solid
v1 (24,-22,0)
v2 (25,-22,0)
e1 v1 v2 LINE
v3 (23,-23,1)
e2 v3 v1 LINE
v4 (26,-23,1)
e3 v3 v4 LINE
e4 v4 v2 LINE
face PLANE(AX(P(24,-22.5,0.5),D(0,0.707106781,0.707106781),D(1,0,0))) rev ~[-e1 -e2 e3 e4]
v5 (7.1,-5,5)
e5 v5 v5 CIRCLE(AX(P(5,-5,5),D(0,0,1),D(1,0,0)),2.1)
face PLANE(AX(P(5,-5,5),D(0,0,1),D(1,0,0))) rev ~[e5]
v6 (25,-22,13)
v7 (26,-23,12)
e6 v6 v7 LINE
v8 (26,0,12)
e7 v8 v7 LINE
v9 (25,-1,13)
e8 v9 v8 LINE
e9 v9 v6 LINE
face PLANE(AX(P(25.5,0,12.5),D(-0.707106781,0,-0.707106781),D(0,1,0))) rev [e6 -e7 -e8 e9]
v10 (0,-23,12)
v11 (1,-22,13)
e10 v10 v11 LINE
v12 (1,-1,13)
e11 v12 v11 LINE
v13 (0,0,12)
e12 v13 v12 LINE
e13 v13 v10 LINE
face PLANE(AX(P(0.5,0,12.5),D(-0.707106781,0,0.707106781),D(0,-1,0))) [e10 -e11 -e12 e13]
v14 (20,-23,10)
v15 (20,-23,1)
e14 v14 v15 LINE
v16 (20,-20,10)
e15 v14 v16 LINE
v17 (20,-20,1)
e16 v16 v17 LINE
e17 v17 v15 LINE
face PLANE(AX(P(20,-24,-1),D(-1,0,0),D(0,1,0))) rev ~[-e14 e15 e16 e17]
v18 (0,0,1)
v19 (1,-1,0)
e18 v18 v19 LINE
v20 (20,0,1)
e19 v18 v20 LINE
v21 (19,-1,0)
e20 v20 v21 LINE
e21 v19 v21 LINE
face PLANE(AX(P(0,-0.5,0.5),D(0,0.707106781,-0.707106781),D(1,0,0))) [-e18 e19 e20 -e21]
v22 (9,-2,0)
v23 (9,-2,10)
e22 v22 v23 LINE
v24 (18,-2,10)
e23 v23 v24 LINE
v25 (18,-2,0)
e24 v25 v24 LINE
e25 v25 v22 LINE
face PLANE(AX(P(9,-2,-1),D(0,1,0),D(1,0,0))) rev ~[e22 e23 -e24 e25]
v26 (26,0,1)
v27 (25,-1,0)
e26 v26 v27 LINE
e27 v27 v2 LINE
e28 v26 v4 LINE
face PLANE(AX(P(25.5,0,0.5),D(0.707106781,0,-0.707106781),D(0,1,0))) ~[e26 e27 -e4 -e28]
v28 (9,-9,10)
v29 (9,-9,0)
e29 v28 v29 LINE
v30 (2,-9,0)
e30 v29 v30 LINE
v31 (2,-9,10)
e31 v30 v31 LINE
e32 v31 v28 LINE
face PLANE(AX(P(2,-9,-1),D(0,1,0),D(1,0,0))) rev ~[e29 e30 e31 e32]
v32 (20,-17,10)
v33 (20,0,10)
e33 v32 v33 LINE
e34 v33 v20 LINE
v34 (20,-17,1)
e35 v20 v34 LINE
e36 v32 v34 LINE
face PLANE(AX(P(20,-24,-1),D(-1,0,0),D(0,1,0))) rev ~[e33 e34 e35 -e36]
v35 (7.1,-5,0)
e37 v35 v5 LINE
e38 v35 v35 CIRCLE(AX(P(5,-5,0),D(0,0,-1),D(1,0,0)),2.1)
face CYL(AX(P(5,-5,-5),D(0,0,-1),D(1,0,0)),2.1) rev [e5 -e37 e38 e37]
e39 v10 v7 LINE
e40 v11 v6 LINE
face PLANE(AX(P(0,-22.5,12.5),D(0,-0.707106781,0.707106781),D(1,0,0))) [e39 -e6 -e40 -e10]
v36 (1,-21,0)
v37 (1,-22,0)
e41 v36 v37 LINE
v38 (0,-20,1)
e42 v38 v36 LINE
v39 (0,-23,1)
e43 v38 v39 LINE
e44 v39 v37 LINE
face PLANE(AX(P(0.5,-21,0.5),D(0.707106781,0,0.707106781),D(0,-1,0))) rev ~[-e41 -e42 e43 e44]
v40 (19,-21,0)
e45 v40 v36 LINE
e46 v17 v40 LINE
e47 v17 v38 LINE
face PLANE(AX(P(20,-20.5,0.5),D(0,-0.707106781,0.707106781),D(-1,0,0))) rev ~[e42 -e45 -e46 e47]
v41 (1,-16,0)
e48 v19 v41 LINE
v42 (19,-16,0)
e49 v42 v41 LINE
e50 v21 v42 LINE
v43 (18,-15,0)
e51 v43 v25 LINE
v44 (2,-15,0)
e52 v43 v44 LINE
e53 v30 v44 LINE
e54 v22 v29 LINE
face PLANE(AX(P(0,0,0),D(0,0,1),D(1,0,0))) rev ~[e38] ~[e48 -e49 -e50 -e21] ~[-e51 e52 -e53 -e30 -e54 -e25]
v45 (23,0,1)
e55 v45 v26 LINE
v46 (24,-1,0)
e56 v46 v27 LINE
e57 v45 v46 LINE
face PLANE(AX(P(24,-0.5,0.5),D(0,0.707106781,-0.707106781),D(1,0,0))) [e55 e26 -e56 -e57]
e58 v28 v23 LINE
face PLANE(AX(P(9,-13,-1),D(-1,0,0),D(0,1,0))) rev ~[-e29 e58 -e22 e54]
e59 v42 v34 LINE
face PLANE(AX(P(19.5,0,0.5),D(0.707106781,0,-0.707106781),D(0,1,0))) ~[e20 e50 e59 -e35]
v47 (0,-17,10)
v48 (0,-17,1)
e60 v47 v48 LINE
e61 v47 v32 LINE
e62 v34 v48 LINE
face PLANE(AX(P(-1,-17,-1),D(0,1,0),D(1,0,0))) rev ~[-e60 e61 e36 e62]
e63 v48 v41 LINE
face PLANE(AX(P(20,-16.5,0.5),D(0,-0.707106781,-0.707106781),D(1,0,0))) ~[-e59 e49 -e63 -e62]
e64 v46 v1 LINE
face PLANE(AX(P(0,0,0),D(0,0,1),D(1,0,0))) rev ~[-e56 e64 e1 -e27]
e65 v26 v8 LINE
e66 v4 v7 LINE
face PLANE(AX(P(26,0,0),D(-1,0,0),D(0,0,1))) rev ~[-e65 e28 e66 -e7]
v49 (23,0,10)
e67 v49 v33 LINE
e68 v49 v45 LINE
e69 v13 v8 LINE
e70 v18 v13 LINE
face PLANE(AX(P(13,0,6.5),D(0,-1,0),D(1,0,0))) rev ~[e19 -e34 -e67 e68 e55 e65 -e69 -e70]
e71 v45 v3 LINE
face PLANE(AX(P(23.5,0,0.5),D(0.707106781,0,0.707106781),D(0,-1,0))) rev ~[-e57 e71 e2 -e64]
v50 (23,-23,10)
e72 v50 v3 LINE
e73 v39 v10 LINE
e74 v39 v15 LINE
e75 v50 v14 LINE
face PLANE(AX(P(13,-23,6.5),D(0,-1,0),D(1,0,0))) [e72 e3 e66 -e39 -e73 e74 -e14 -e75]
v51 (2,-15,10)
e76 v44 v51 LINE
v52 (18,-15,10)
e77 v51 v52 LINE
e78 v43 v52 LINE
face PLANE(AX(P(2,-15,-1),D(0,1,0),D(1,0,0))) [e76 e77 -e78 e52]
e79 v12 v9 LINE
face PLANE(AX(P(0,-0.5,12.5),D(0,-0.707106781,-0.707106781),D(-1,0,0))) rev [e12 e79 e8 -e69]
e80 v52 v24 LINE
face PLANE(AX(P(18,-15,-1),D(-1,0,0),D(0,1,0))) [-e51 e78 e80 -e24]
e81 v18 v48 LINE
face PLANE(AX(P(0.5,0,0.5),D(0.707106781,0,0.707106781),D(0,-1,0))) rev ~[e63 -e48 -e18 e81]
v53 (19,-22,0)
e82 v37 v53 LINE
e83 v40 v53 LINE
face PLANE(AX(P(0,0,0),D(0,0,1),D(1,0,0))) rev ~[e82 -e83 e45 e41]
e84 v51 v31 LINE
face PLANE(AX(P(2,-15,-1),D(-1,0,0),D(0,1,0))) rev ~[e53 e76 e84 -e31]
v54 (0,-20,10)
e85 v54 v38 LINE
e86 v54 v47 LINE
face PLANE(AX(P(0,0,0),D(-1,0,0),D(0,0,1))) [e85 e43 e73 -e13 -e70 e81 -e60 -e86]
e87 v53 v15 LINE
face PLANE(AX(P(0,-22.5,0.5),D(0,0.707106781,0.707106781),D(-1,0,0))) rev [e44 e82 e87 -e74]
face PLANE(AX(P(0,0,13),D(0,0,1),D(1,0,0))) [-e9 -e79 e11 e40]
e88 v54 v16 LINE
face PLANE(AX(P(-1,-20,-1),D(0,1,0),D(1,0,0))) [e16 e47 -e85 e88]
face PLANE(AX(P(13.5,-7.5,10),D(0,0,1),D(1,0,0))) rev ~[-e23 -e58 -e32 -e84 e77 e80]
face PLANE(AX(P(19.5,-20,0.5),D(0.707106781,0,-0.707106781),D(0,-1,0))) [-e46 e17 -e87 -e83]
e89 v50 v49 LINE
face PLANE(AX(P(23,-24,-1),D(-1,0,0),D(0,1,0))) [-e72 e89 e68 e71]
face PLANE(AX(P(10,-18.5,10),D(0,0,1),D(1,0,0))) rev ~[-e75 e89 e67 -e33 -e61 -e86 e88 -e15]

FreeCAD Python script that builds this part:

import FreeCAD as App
import Part
import Sketcher


def edges_at(feature, points):
    """Names of the edges that pass closest to the given points."""
    edges = feature.Shape.Edges
    near = lambda p: min(range(len(edges)), key=lambda i: edges[i].distToShape(Part.Vertex(*p))[0])
    return sorted({f"Edge{near(p) + 1}" for p in points})

doc = App.newDocument("Part")
body = doc.addObject("PartDesign::Body", "Body")

# Sketch on XY plane
sketch1 = body.newObject("Sketcher::SketchObject", "Sketch")
sketch1.AttachmentSupport = (doc.getObject("XY_Plane"), [""])
sketch1.MapMode = "FlatFace"
sketch1.AttachmentOffset = App.Placement(App.Vector(0, 0, -5), App.Rotation())
sketch1.addGeometry(Part.Circle(App.Vector(5, -5, 0), App.Vector(0, 0, 1), 2.1), False)
sketch1.addConstraint([
    Sketcher.Constraint("Diameter", 0, 4.2),
    Sketcher.Constraint("DistanceX", -1, 1, 0, 3, 5.0),
    Sketcher.Constraint("DistanceY", 0, 3, -1, 1, 5.0),
])
pad1 = body.newObject("PartDesign::Pad", "Pad")
pad1.Profile = sketch1
pad1.Length = 10
body2 = doc.addObject("PartDesign::Body", "Body001")

# Sketch on XY plane
sketch2 = body2.newObject("Sketcher::SketchObject", "Sketch001")
sketch2.AttachmentSupport = (doc.getObject("XY_Plane001"), [""])
sketch2.MapMode = "FlatFace"
sketch2.AttachmentOffset = App.Placement(App.Vector(0, 0, -1), App.Rotation())
sketch2.addGeometry([
    Part.LineSegment(App.Vector(2, -9, 0), App.Vector(2, -15, 0)),
    Part.LineSegment(App.Vector(2, -15, 0), App.Vector(18, -15, 0)),
    Part.LineSegment(App.Vector(18, -15, 0), App.Vector(18, -9, 0)),
    Part.LineSegment(App.Vector(18, -9, 0), App.Vector(2, -9, 0)),
], False)
sketch2.addConstraint([
    Sketcher.Constraint("Coincident", 0, 2, 1, 1),
    Sketcher.Constraint("Coincident", 1, 2, 2, 1),
    Sketcher.Constraint("Coincident", 2, 2, 3, 1),
    Sketcher.Constraint("Coincident", 3, 2, 0, 1),
    Sketcher.Constraint("Vertical", 0),
    Sketcher.Constraint("Horizontal", 1),
    Sketcher.Constraint("Vertical", 2),
    Sketcher.Constraint("Horizontal", 3),
    Sketcher.Constraint("DistanceX", 1, 1, 1, 2, 16.0),
    Sketcher.Constraint("DistanceY", 0, 2, 0, 1, 6.0),
    Sketcher.Constraint("DistanceX", -1, 1, 0, 2, 2.0),
    Sketcher.Constraint("DistanceY", 0, 2, -1, 1, 15.0),
])
pad2 = body2.newObject("PartDesign::Pad", "Pad001")
pad2.Profile = sketch2
pad2.Length = 11
body3 = doc.addObject("PartDesign::Body", "Body002")

# Sketch on XY plane
sketch3 = body3.newObject("Sketcher::SketchObject", "Sketch002")
sketch3.AttachmentSupport = (doc.getObject("XY_Plane002"), [""])
sketch3.MapMode = "FlatFace"
sketch3.AttachmentOffset = App.Placement(App.Vector(0, 0, -1), App.Rotation())
sketch3.addGeometry([
    Part.LineSegment(App.Vector(9, -2, 0), App.Vector(9, -13, 0)),
    Part.LineSegment(App.Vector(9, -13, 0), App.Vector(18, -13, 0)),
    Part.LineSegment(App.Vector(18, -13, 0), App.Vector(18, -2, 0)),
    Part.LineSegment(App.Vector(18, -2, 0), App.Vector(9, -2, 0)),
], False)
sketch3.addConstraint([
    Sketcher.Constraint("Coincident", 0, 2, 1, 1),
    Sketcher.Constraint("Coincident", 1, 2, 2, 1),
    Sketcher.Constraint("Coincident", 2, 2, 3, 1),
    Sketcher.Constraint("Coincident", 3, 2, 0, 1),
    Sketcher.Constraint("Vertical", 0),
    Sketcher.Constraint("Horizontal", 1),
    Sketcher.Constraint("Vertical", 2),
    Sketcher.Constraint("Horizontal", 3),
    Sketcher.Constraint("DistanceX", 1, 1, 1, 2, 9.0),
    Sketcher.Constraint("DistanceY", 0, 2, 0, 1, 11.0),
    Sketcher.Constraint("DistanceX", -1, 1, 0, 2, 9.0),
    Sketcher.Constraint("DistanceY", 0, 2, -1, 1, 13.0),
])
pad3 = body3.newObject("PartDesign::Pad", "Pad002")
pad3.Profile = sketch3
pad3.Length = 11
body4 = doc.addObject("PartDesign::Body", "Body003")

# Sketch on XY plane
sketch4 = body4.newObject("Sketcher::SketchObject", "Sketch003")
sketch4.AttachmentSupport = (doc.getObject("XY_Plane003"), [""])
sketch4.MapMode = "FlatFace"
sketch4.AttachmentOffset = App.Placement(App.Vector(0, 0, -1), App.Rotation())
sketch4.addGeometry([
    Part.LineSegment(App.Vector(-1, -17, 0), App.Vector(-1, -20, 0)),
    Part.LineSegment(App.Vector(-1, -20, 0), App.Vector(21, -20, 0)),
    Part.LineSegment(App.Vector(21, -20, 0), App.Vector(21, -17, 0)),
    Part.LineSegment(App.Vector(21, -17, 0), App.Vector(-1, -17, 0)),
], False)
sketch4.addConstraint([
    Sketcher.Constraint("Coincident", 0, 2, 1, 1),
    Sketcher.Constraint("Coincident", 1, 2, 2, 1),
    Sketcher.Constraint("Coincident", 2, 2, 3, 1),
    Sketcher.Constraint("Coincident", 3, 2, 0, 1),
    Sketcher.Constraint("Vertical", 0),
    Sketcher.Constraint("Horizontal", 1),
    Sketcher.Constraint("Vertical", 2),
    Sketcher.Constraint("Horizontal", 3),
    Sketcher.Constraint("DistanceX", 1, 1, 1, 2, 22.0),
    Sketcher.Constraint("DistanceY", 0, 2, 0, 1, 3.0),
    Sketcher.Constraint("DistanceX", 0, 2, -1, 1, 1.0),
    Sketcher.Constraint("DistanceY", 0, 2, -1, 1, 20.0),
])
pad4 = body4.newObject("PartDesign::Pad", "Pad003")
pad4.Profile = sketch4
pad4.Length = 11
body5 = doc.addObject("PartDesign::Body", "Body004")

# Sketch on XY plane
sketch5 = body5.newObject("Sketcher::SketchObject", "Sketch004")
sketch5.AttachmentSupport = (doc.getObject("XY_Plane004"), [""])
sketch5.MapMode = "FlatFace"
sketch5.AttachmentOffset = App.Placement(App.Vector(0, 0, -1), App.Rotation())
sketch5.addGeometry([
    Part.LineSegment(App.Vector(20, 1, 0), App.Vector(20, -24, 0)),
    Part.LineSegment(App.Vector(20, -24, 0), App.Vector(23, -24, 0)),
    Part.LineSegment(App.Vector(23, -24, 0), App.Vector(23, 1, 0)),
    Part.LineSegment(App.Vector(23, 1, 0), App.Vector(20, 1, 0)),
], False)
sketch5.addConstraint([
    Sketcher.Constraint("Coincident", 0, 2, 1, 1),
    Sketcher.Constraint("Coincident", 1, 2, 2, 1),
    Sketcher.Constraint("Coincident", 2, 2, 3, 1),
    Sketcher.Constraint("Coincident", 3, 2, 0, 1),
    Sketcher.Constraint("Vertical", 0),
    Sketcher.Constraint("Horizontal", 1),
    Sketcher.Constraint("Vertical", 2),
    Sketcher.Constraint("Horizontal", 3),
    Sketcher.Constraint("DistanceX", 1, 1, 1, 2, 3.0),
    Sketcher.Constraint("DistanceY", 0, 2, 0, 1, 25.0),
    Sketcher.Constraint("DistanceX", -1, 1, 0, 2, 20.0),
    Sketcher.Constraint("DistanceY", 0, 2, -1, 1, 24.0),
])
pad5 = body5.newObject("PartDesign::Pad", "Pad004")
pad5.Profile = sketch5
pad5.Length = 11
body6 = doc.addObject("PartDesign::Body", "Body005")

# Sketch on XY plane
sketch6 = body6.newObject("Sketcher::SketchObject", "Sketch005")
sketch6.AttachmentSupport = (doc.getObject("XY_Plane005"), [""])
sketch6.MapMode = "FlatFace"
sketch6.AttachmentOffset = App.Placement(App.Vector(0, 0, -5), App.Rotation())
sketch6.addGeometry(Part.Circle(App.Vector(5, -5, 0), App.Vector(0, 0, 1), 2), False)
sketch6.addConstraint([
    Sketcher.Constraint("Diameter", 0, 4.0),
    Sketcher.Constraint("DistanceX", -1, 1, 0, 3, 5.0),
    Sketcher.Constraint("DistanceY", 0, 3, -1, 1, 5.0),
])
pad6 = body6.newObject("PartDesign::Pad", "Pad005")
pad6.Profile = sketch6
pad6.Length = 10
body7 = doc.addObject("PartDesign::Body", "Body006")

# Sketch on XY plane
sketch7 = body7.newObject("Sketcher::SketchObject", "Sketch006")
sketch7.AttachmentSupport = (doc.getObject("XY_Plane006"), [""])
sketch7.MapMode = "FlatFace"
sketch7.addGeometry([
    Part.LineSegment(App.Vector(0, 13, 0), App.Vector(0, 0, 0)),
    Part.LineSegment(App.Vector(0, 0, 0), App.Vector(26, 0, 0)),
    Part.LineSegment(App.Vector(26, 0, 0), App.Vector(26, 13, 0)),
    Part.LineSegment(App.Vector(26, 13, 0), App.Vector(0, 13, 0)),
], False)
sketch7.addConstraint([
    Sketcher.Constraint("Coincident", 0, 2, 1, 1),
    Sketcher.Constraint("Coincident", 1, 2, 2, 1),
    Sketcher.Constraint("Coincident", 2, 2, 3, 1),
    Sketcher.Constraint("Coincident", 3, 2, 0, 1),
    Sketcher.Constraint("Vertical", 0),
    Sketcher.Constraint("Horizontal", 1),
    Sketcher.Constraint("Vertical", 2),
    Sketcher.Constraint("Horizontal", 3),
    Sketcher.Constraint("Coincident", 0, 2, -1, 1),
    Sketcher.Constraint("DistanceX", 1, 1, 1, 2, 26.0),
    Sketcher.Constraint("DistanceY", 0, 2, 0, 1, 13.0),
])
pad7 = body7.newObject("PartDesign::Pad", "Pad006")
pad7.Profile = sketch7
pad7.Length = 23
body8 = doc.addObject("PartDesign::Body", "Body007")
doc.recompute()

body7.Placement = App.Placement(App.Vector(0, 0, 0), App.Rotation(App.Vector(1, 0, 0), 90))
boolean = body8.newObject("PartDesign::Boolean", "Boolean")
boolean.Type = "Fuse"
boolean.addObjects([body7])
doc.recompute()

boolean2 = body8.newObject("PartDesign::Boolean", "Boolean001")
boolean2.Type = "Cut"
boolean2.addObjects([body6])
doc.recompute()

boolean3 = body8.newObject("PartDesign::Boolean", "Boolean002")
boolean3.Type = "Cut"
boolean3.addObjects([body5])
doc.recompute()

boolean4 = body8.newObject("PartDesign::Boolean", "Boolean003")
boolean4.Type = "Cut"
boolean4.addObjects([body4])
doc.recompute()

boolean5 = body8.newObject("PartDesign::Boolean", "Boolean004")
boolean5.Type = "Cut"
boolean5.addObjects([body3])
doc.recompute()

boolean6 = body8.newObject("PartDesign::Boolean", "Boolean005")
boolean6.Type = "Cut"
boolean6.addObjects([body2])
doc.recompute()

chamfer = body8.newObject("PartDesign::Chamfer", "Chamfer")
chamfer.Base = (boolean6, edges_at(boolean6, [
    (20, -8.5, 0),
    (10, -17, 0),
    (10, -20, 0),
    (20, -21.5, 0),
    (23, -11.5, 0),
]))
chamfer.Size = 1
doc.recompute()

chamfer2 = body8.newObject("PartDesign::Chamfer", "Chamfer001")
chamfer2.Base = (chamfer, edges_at(chamfer, [
    (0, -8, 0),
    (0, -22, 0),
    (9.5, 0, 0),
    (25, 0, 0),
    (25, -23, 0),
    (9.5, -23, 0),
    (26, -11.5, 0),
]))
chamfer2.Size = 1
doc.recompute()

chamfer3 = body8.newObject("PartDesign::Chamfer", "Chamfer002")
chamfer3.Base = (chamfer2, edges_at(chamfer2, [
    (0, -11.5, 13),
    (13, 0, 13),
    (26, -11.5, 13),
    (13, -23, 13),
]))
chamfer3.Size = 1
doc.recompute()

boolean7 = body8.newObject("PartDesign::Boolean", "Boolean006")
boolean7.Type = "Cut"
boolean7.addObjects([body])

doc.recompute()
